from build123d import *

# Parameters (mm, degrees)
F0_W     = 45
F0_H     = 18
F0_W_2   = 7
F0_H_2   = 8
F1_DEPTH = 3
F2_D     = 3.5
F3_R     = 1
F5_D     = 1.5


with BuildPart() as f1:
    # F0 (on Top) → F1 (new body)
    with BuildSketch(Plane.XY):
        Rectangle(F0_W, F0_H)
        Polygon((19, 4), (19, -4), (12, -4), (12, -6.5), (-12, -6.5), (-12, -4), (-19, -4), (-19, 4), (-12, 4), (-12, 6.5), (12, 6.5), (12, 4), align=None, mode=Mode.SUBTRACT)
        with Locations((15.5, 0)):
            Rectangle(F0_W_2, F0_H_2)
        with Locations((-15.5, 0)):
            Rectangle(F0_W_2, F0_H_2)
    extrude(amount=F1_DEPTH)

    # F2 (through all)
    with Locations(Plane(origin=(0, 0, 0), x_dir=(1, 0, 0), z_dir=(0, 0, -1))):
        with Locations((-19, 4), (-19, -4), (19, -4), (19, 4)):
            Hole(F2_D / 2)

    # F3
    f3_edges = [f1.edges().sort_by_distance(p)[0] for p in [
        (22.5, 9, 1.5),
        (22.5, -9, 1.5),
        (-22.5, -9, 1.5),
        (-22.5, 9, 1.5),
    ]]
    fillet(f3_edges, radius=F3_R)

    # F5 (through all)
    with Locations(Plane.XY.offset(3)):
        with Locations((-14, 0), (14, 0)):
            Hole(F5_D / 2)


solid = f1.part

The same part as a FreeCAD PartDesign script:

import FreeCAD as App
import Part
import Sketcher
from FreeCAD import Vector
Q = App.Units.Quantity


def edges_at(feature, points):
    """Names of the edges that pass closest to the given points."""
    edges = feature.Shape.Edges
    near = lambda p: min(range(len(edges)), key=lambda i: edges[i].distToShape(Part.Vertex(*p))[0])
    return sorted({f"Edge{near(p) + 1}" for p in points})


def add_polygon(sketch, points):
    """Adds a closed chain of lines whose ends are joined by coincident constraints."""
    first, n = sketch.GeometryCount, len(points)
    for a, b in zip(points, points[1:] + points[:1]):
        sketch.addGeometry(Part.LineSegment(App.Vector(*a, 0), App.Vector(*b, 0)), False)
    for i in range(n):
        sketch.addConstraint(Sketcher.Constraint("Coincident", first + i, 2, first + (i + 1) % n, 1))

doc = App.newDocument("Part")
body = doc.addObject("PartDesign::Body", "Body")

sketch1 = doc.addObject("Sketcher::SketchObject", "Sketch")
body.addObject(sketch1)
sketch1.AttachmentSupport = (doc.XY_Plane, [""])
sketch1.MapMode = "FlatFace"
add_polygon(sketch1, [(-22.5, 9), (-22.5, -9), (22.5, -9), (22.5, 9)])
add_polygon(sketch1, [(12, 6.5), (12, -6.5), (-12, -6.5), (-12, 6.5)])
sketch1.addConstraint([
    Sketcher.Constraint("Vertical", 0),
    Sketcher.Constraint("Horizontal", 1),
    Sketcher.Constraint("Vertical", 2),
    Sketcher.Constraint("Horizontal", 3),
    Sketcher.Constraint("Vertical", 4),
    Sketcher.Constraint("Horizontal", 5),
    Sketcher.Constraint("Vertical", 6),
    Sketcher.Constraint("Horizontal", 7),
    Sketcher.Constraint("Symmetric", 0, 2, 2, 2, -1, 1),
    Sketcher.Constraint("Symmetric", 4, 2, 6, 2, -1, 1),
    Sketcher.Constraint("DistanceX", 1, 1, 1, 2, Q("45 mm")),
    Sketcher.Constraint("DistanceX", 5, 2, 5, 1, Q("24 mm")),
    Sketcher.Constraint("DistanceY", 0, 2, 0, 1, Q("18 mm")),
    Sketcher.Constraint("DistanceY", 4, 2, 4, 1, Q("13 mm")),
])
pad1 = doc.addObject("PartDesign::Pad", "Pad")
body.addObject(pad1)
pad1.Profile = sketch1
pad1.Length = 3

sketch2 = doc.addObject("Sketcher::SketchObject", "Sketch001")
body.addObject(sketch2)
sketch2.AttachmentSupport = (doc.XY_Plane, [""])
sketch2.MapMode = "FlatFace"
sketch2.addGeometry([
    Part.Circle(Vector(-19, -4, 0), Vector(0, 0, 1), 1.75),
    Part.Circle(Vector(-19, 4, 0), Vector(0, 0, 1), 1.75),
    Part.Circle(Vector(19, 4, 0), Vector(0, 0, 1), 1.75),
    Part.Circle(Vector(19, -4, 0), Vector(0, 0, 1), 1.75),
], False)
sketch2.addConstraint([
    Sketcher.Constraint("Equal", 0, 1),
    Sketcher.Constraint("Equal", 1, 2),
    Sketcher.Constraint("Equal", 2, 3),
    Sketcher.Constraint("Symmetric", 0, 3, 2, 3, -1, 1),
    Sketcher.Constraint("Symmetric", 1, 3, 3, 3, -1, 1),
    Sketcher.Constraint("Symmetric", 1, 3, 2, 3, -2),
    Sketcher.Constraint("Diameter", 0, Q("3.5 mm")),
    Sketcher.Constraint("DistanceX", 0, 3, -1, 1, Q("19 mm")),
    Sketcher.Constraint("DistanceY", 0, 3, -1, 1, Q("4 mm")),
])
doc.recompute()
hole = doc.addObject("PartDesign::Hole", "Hole")
body.addObject(hole)
hole.Profile = sketch2
hole.ThreadType = "None"
hole.Diameter = 3.5
hole.DepthType = "ThroughAll"
hole.Reversed = True
doc.recompute()

fillet = doc.addObject("PartDesign::Fillet", "Fillet")
body.addObject(fillet)
fillet.Base = (hole, edges_at(hole, [
    (22.5, 9, 1.5),
    (22.5, -9, 1.5),
    (-22.5, -9, 1.5),
    (-22.5, 9, 1.5),
]))
fillet.Radius = 1

sketch3 = doc.addObject("Sketcher::SketchObject", "Sketch002")
body.addObject(sketch3)
sketch3.AttachmentSupport = (doc.XY_Plane, [""])
sketch3.MapMode = "FlatFace"
sketch3.AttachmentOffset = App.Placement(Vector(0, 0, 3), App.Rotation())
sketch3.addGeometry([
    Part.Circle(Vector(-14, 0, 0), Vector(0, 0, 1), 0.75),
    Part.Circle(Vector(14, 0, 0), Vector(0, 0, 1), 0.75),
], False)
sketch3.addConstraint([
    Sketcher.Constraint("Equal", 0, 1),
    Sketcher.Constraint("Symmetric", 0, 3, 1, 3, -1, 1),
    Sketcher.Constraint("PointOnObject", 0, 3, -1),
    Sketcher.Constraint("Diameter", 0, Q("1.5 mm")),
    Sketcher.Constraint("DistanceX", 0, 3, -1, 1, Q("14 mm")),
])
doc.recompute()
hole2 = doc.addObject("PartDesign::Hole", "Hole001")
body.addObject(hole2)
hole2.Profile = sketch3
hole2.ThreadType = "None"
hole2.Diameter = 1.5
hole2.DepthType = "ThroughAll"

doc.recompute()
